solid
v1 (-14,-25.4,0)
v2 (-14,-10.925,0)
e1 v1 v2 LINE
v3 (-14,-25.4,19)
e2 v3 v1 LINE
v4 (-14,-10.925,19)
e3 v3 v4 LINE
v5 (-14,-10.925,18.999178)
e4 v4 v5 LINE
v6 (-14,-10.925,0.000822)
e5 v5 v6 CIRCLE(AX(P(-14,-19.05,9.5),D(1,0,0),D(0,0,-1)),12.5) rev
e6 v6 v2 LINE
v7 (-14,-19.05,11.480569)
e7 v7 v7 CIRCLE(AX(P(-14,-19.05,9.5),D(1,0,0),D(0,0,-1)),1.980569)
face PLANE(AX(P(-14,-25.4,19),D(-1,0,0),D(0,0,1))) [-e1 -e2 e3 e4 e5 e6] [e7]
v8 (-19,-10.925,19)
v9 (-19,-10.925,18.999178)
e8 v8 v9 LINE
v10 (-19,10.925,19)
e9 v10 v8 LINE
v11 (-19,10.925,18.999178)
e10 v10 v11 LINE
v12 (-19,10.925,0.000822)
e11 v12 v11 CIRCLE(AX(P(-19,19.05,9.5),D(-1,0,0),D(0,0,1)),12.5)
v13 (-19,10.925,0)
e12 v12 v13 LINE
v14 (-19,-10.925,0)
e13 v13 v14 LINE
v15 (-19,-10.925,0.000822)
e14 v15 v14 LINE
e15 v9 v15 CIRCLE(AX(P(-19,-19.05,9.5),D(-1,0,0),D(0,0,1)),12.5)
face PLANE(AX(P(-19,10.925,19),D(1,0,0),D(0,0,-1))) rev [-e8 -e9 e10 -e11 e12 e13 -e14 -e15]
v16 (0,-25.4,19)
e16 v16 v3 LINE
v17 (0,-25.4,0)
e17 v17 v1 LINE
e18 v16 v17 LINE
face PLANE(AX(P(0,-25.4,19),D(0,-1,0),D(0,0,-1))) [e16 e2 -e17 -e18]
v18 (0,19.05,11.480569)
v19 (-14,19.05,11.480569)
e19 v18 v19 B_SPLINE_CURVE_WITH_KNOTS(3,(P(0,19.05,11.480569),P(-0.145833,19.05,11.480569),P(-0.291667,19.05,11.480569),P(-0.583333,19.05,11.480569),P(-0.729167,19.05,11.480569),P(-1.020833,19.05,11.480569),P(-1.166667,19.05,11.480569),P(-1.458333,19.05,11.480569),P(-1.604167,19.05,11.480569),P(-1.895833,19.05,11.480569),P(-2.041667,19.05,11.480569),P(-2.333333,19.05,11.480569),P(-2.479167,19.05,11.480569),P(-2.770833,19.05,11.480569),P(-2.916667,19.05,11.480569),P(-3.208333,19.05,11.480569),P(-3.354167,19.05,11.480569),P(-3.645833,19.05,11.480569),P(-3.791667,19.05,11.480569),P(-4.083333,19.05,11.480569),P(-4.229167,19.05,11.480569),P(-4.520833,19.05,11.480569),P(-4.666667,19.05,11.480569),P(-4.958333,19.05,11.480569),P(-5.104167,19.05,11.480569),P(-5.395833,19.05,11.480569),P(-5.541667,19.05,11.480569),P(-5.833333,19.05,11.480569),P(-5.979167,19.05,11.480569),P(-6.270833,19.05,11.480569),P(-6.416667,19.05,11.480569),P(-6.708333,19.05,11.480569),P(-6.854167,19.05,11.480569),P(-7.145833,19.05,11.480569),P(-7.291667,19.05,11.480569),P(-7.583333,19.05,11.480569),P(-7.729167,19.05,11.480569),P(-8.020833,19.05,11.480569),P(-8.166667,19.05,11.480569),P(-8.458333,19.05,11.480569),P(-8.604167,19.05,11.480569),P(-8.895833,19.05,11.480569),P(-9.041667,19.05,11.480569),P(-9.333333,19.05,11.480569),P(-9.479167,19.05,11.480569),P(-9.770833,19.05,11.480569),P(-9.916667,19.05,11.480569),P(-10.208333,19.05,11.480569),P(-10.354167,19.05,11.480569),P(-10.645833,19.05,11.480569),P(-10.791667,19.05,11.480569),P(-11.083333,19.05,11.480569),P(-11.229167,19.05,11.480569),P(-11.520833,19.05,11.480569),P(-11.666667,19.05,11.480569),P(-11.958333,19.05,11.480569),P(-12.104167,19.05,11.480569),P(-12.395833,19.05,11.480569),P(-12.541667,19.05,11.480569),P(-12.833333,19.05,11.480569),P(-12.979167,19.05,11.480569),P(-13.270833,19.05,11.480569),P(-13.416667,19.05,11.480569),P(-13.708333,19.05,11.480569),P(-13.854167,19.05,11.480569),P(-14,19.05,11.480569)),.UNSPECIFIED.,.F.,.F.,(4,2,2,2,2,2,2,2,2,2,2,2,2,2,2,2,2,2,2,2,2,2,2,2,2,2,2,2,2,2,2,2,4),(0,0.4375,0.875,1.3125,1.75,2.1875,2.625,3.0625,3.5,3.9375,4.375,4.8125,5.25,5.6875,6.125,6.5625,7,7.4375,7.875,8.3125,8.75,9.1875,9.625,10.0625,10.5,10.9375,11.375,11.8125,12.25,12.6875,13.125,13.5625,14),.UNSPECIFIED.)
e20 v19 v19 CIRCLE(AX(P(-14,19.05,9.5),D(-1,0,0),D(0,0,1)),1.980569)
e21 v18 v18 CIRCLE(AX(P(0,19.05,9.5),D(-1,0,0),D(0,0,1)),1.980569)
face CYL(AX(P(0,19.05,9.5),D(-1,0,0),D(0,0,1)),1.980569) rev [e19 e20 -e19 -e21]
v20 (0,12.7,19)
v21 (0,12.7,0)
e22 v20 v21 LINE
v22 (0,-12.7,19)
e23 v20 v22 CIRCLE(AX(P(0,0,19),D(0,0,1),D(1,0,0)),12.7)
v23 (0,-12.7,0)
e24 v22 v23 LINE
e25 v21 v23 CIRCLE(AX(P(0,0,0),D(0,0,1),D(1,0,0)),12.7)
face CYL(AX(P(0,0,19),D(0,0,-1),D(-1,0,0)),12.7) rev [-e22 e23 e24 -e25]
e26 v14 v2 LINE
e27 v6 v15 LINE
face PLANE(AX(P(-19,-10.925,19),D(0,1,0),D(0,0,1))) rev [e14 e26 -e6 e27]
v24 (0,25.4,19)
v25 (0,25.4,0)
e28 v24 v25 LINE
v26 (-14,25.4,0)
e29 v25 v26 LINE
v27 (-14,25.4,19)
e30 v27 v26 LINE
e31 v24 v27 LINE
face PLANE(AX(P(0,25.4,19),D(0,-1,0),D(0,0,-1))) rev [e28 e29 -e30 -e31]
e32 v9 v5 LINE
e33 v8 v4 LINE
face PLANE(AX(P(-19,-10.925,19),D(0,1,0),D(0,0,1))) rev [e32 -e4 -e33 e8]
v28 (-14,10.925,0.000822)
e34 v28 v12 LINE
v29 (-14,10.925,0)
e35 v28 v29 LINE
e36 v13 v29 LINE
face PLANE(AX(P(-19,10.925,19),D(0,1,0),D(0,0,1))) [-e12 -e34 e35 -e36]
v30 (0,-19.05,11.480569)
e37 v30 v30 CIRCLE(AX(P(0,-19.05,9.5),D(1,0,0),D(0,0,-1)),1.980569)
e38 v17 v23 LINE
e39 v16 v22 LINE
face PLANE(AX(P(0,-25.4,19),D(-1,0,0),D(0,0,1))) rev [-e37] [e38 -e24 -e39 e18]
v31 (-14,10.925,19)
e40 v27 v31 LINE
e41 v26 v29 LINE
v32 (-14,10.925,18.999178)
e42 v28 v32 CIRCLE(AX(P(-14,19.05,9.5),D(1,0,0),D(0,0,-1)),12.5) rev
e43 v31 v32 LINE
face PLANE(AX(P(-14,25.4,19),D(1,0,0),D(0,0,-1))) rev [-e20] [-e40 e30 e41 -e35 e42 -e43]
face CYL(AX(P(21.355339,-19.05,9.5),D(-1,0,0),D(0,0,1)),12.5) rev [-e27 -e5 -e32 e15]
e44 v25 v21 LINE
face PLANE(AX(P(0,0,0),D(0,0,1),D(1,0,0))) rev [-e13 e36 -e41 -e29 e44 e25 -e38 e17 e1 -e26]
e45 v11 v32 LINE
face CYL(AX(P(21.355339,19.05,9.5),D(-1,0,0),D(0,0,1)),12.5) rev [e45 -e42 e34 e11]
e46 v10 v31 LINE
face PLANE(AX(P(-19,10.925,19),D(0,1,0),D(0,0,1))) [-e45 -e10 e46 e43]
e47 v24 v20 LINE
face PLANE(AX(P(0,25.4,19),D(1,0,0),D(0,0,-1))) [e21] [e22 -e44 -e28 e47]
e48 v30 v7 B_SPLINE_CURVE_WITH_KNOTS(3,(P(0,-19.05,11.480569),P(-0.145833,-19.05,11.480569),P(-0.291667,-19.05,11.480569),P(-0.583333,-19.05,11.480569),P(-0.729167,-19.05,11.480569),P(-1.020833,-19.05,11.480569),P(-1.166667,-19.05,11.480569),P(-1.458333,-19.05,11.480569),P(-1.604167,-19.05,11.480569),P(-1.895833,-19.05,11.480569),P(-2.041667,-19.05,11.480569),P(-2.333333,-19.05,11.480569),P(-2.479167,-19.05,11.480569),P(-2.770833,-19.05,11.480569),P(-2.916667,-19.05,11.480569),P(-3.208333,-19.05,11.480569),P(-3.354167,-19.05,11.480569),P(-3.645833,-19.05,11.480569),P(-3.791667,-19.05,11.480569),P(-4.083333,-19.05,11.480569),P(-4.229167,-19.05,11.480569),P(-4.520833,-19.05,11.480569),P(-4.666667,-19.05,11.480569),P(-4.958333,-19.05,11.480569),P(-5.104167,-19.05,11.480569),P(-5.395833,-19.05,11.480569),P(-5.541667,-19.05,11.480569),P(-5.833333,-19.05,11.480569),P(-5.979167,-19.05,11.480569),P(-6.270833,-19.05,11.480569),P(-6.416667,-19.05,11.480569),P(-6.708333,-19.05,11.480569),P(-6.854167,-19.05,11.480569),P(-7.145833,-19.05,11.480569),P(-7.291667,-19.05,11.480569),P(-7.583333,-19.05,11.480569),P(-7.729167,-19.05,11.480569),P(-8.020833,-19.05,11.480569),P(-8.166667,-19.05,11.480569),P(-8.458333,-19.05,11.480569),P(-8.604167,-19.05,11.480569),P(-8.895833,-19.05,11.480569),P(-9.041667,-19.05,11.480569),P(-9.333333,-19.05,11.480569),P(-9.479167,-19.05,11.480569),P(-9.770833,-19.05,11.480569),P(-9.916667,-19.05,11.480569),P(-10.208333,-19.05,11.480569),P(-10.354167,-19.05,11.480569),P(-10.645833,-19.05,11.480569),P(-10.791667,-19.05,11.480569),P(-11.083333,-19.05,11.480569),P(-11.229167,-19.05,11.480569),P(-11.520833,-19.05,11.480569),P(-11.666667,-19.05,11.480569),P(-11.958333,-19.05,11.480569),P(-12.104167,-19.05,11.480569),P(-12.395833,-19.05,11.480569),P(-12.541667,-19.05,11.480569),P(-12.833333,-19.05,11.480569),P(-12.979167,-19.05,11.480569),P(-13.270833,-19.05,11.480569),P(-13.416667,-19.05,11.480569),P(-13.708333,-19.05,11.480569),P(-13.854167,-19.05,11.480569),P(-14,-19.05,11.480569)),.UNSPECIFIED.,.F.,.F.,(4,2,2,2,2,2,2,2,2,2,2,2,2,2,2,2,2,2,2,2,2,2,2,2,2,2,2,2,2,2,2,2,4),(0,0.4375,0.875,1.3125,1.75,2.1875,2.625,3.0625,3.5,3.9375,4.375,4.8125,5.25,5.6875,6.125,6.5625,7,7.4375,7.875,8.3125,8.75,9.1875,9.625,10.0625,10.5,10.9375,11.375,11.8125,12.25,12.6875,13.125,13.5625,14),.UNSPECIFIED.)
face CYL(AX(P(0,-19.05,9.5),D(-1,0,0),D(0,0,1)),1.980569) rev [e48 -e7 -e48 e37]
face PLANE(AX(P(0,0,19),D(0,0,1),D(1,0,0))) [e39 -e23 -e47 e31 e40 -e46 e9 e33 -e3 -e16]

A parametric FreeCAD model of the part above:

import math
import FreeCAD as App
import Part
import Sketcher
from FreeCAD import Vector
Q = App.Units.Quantity

doc = App.newDocument("Part")
body = doc.addObject("PartDesign::Body", "Body")

sketch1 = body.newObject("Sketcher::SketchObject", "Sketch")
sketch1.AttachmentSupport = (doc.getObject("XY_Plane"), [""])
sketch1.MapMode = "FlatFace"
sketch1.addGeometry([
    Part.LineSegment(Vector(-19, 11, 0), Vector(-19, -11, 0)),
    Part.LineSegment(Vector(-19, -11, 0), Vector(-14, -11, 0)),
    Part.LineSegment(Vector(-14, -11, 0), Vector(-14, -25, 0)),
    Part.LineSegment(Vector(-14, -25, 0), Vector(0, -25, 0)),
    Part.LineSegment(Vector(0, -25, 0), Vector(0, -13, 0)),
    Part.ArcOfCircle(Part.Circle(Vector(0, 0, 0), Vector(0, 0, 1), 13), math.radians(90), math.radians(270)),
    Part.LineSegment(Vector(0, 13, 0), Vector(0, 25, 0)),
    Part.LineSegment(Vector(0, 25, 0), Vector(-14, 25, 0)),
    Part.LineSegment(Vector(-14, 25, 0), Vector(-14, 11, 0)),
    Part.LineSegment(Vector(-14, 11, 0), Vector(-19, 11, 0)),
], False)
sketch1.addConstraint([
    Sketcher.Constraint("Coincident", 0, 2, 1, 1),
    Sketcher.Constraint("Coincident", 1, 2, 2, 1),
    Sketcher.Constraint("Coincident", 2, 2, 3, 1),
    Sketcher.Constraint("Coincident", 3, 2, 4, 1),
    Sketcher.Constraint("Coincident", 4, 2, 5, 2),
    Sketcher.Constraint("Coincident", 5, 1, 6, 1),
    Sketcher.Constraint("Coincident", 6, 2, 7, 1),
    Sketcher.Constraint("Coincident", 7, 2, 8, 1),
    Sketcher.Constraint("Coincident", 8, 2, 9, 1),
    Sketcher.Constraint("Coincident", 9, 2, 0, 1),
    Sketcher.Constraint("Vertical", 0),
    Sketcher.Constraint("Horizontal", 1),
    Sketcher.Constraint("Vertical", 2),
    Sketcher.Constraint("Horizontal", 3),
    Sketcher.Constraint("Vertical", 4),
    Sketcher.Constraint("Vertical", 6),
    Sketcher.Constraint("Horizontal", 7),
    Sketcher.Constraint("Vertical", 8),
    Sketcher.Constraint("Horizontal", 9),
    Sketcher.Constraint("Coincident", 5, 3, -1, 1),
    Sketcher.Constraint("Symmetric", 3, 2, 6, 2, -1, 1),
    Sketcher.Constraint("Symmetric", 1, 2, 8, 2, -1),
    Sketcher.Constraint("PointOnObject", 3, 2, -2),
    Sketcher.Constraint("Radius", 5, Q("12.7 mm")),
    Sketcher.Constraint("DistanceX", 1, 1, 1, 2, Q("5 mm")),
    Sketcher.Constraint("DistanceX", 3, 1, 3, 2, Q("14 mm")),
    Sketcher.Constraint("DistanceY", 4, 1, 4, 2, Q("12.7 mm")),
    Sketcher.Constraint("DistanceY", 0, 2, 0, 1, Q("21.85 mm")),
])
pad1 = body.newObject("PartDesign::Pad", "Pad")
pad1.Profile = sketch1
pad1.Length = 19

sketch2 = body.newObject("Sketcher::SketchObject", "Sketch001")
sketch2.AttachmentSupport = (doc.getObject("YZ_Plane"), [""])
sketch2.MapMode = "FlatFace"
sketch2.AttachmentOffset = App.Placement(Vector(0, 0, -14), App.Rotation())
sketch2.addGeometry([
    Part.Circle(Vector(19.1, 9.5, 0), Vector(0, 0, 1), 2),
    Part.Circle(Vector(-19.1, 9.5, 0), Vector(0, 0, 1), 2),
], False)
sketch2.addConstraint([
    Sketcher.Constraint("Equal", 0, 1),
    Sketcher.Constraint("Symmetric", 0, 3, 1, 3, -2),
    Sketcher.Constraint("DistanceY", -1, 1, 0, 3, Q("9.5 mm")),
    Sketcher.Constraint("DistanceX", 1, 3, 0, 3, Q("38.1 mm")),
    Sketcher.Constraint("Diameter", 0, Q("3.961138 mm")),
])
pocket1 = body.newObject("PartDesign::Pocket", "Pocket")
pocket1.Profile = sketch2
pocket1.Type = "ThroughAll"
pocket1.Reversed = True

sketch3 = body.newObject("Sketcher::SketchObject", "Sketch002")
sketch3.AttachmentSupport = (doc.getObject("YZ_Plane"), [""])
sketch3.MapMode = "FlatFace"
sketch3.AttachmentOffset = App.Placement(Vector(0, 0, -19), App.Rotation())
sketch3.addGeometry([
    Part.Circle(Vector(19, 10, 0), Vector(0, 0, 1), 12),
    Part.Circle(Vector(-19, 10, 0), Vector(0, 0, 1), 12),
], False)
sketch3.addConstraint([
    Sketcher.Constraint("Equal", 0, 1),
    Sketcher.Constraint("Symmetric", 0, 3, 1, 3, -2),
    Sketcher.Constraint("Diameter", 0, Q("25 mm")),
    Sketcher.Constraint("DistanceY", -1, 1, 0, 3, Q("9.5 mm")),
    Sketcher.Constraint("DistanceX", 1, 3, 0, 3, Q("38.1 mm")),
])
pocket2 = body.newObject("PartDesign::Pocket", "Pocket001")
pocket2.Profile = sketch3
pocket2.Length = 5
pocket2.Reversed = True

doc.recompute()
